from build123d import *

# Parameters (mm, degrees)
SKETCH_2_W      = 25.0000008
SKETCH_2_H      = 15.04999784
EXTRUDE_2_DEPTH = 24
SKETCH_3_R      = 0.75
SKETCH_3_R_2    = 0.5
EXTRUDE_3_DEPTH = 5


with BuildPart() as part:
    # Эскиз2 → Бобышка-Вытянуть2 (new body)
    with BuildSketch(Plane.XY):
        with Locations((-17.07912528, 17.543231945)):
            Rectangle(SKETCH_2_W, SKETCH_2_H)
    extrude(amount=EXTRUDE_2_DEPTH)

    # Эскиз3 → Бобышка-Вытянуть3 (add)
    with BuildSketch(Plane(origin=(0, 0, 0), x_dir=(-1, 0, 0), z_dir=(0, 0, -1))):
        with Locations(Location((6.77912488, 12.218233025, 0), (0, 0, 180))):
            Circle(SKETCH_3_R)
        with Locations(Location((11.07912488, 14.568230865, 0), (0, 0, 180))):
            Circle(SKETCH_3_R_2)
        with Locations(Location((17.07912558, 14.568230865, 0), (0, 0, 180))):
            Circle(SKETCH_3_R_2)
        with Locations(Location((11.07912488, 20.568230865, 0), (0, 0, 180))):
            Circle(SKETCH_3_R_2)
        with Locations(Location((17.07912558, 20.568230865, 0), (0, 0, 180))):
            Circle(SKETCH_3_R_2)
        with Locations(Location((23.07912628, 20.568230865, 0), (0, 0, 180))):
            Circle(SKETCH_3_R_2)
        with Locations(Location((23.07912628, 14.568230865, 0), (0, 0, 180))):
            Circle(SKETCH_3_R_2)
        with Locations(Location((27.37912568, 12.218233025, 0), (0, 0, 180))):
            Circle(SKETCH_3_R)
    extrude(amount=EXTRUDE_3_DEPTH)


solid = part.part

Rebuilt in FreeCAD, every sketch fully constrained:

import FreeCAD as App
import Part
import Sketcher

V = App.Vector


def add_polygon(sketch, points):
    """Adds a closed chain of lines whose ends are joined by coincident constraints."""
    first, n = sketch.GeometryCount, len(points)
    for a, b in zip(points, points[1:] + points[:1]):
        sketch.addGeometry(Part.LineSegment(App.Vector(*a, 0), App.Vector(*b, 0)), False)
    for i in range(n):
        sketch.addConstraint(Sketcher.Constraint("Coincident", first + i, 2, first + (i + 1) % n, 1))

doc = App.newDocument("Part")
params = doc.addObject("Spreadsheet::Sheet", "Params")
for row, (alias, value) in enumerate([
    ("sketch1_width", "25.000001 mm"),
    ("pad1_length", "24 mm"),
    ("sketch2_diameter", "1 mm"),
    ("sketch2_diameter2", "1.5 mm"),
    ("pad2_length", "5 mm"),
], start=1):
    params.set(f"A{row}", alias)
    params.set(f"B{row}", "=" + value)
    params.setAlias(f"B{row}", alias)

body = doc.addObject("PartDesign::Body", "Body")

# Sketch on XY plane
sketch1 = doc.addObject("Sketcher::SketchObject", "Sketch")
body.addObject(sketch1)
sketch1.AttachmentSupport = (doc.XY_Plane, [""])
sketch1.MapMode = "FlatFace"
add_polygon(sketch1, [(-30, 25), (-30, 10), (-5, 10), (-5, 25)])  # lines 0-3
sketch1.addConstraint([
    Sketcher.Constraint("Vertical", 0),
    Sketcher.Constraint("Horizontal", 1),
    Sketcher.Constraint("Vertical", 2),
    Sketcher.Constraint("Horizontal", 3),
    Sketcher.Constraint("DistanceX", 1, 1, 1, 2, 25.000001),
    Sketcher.Constraint("DistanceY", 0, 2, 0, 1, 15.049998),
    Sketcher.Constraint("DistanceY", -1, 1, 2, 2, 25.068231),
    Sketcher.Constraint("DistanceX", 0, 2, -1, 1, 29.579126),
])
sketch1.setExpression("Constraints[8]", "Params.sketch1_width")
pad1 = doc.addObject("PartDesign::Pad", "Pad")
body.addObject(pad1)
pad1.Profile = sketch1
pad1.setExpression("Length", "Params.pad1_length")

# Sketch on XY plane
sketch2 = doc.addObject("Sketcher::SketchObject", "Sketch001")
body.addObject(sketch2)
sketch2.AttachmentSupport = (doc.XY_Plane, [""])
sketch2.MapMode = "FlatFace"
sketch2.addGeometry([
    Part.Circle(V(-6.8, 12.2, 0), V(0, 0, 1), 0.8),  # 0
    Part.Circle(V(-11.1, 14.6, 0), V(0, 0, 1), 0.5),  # 1
    Part.Circle(V(-17.1, 14.6, 0), V(0, 0, 1), 0.5),  # 2
    Part.Circle(V(-11.1, 20.6, 0), V(0, 0, 1), 0.5),  # 3
    Part.Circle(V(-17.1, 20.6, 0), V(0, 0, 1), 0.5),  # 4
    Part.Circle(V(-23.1, 20.6, 0), V(0, 0, 1), 0.5),  # 5
    Part.Circle(V(-23.1, 14.6, 0), V(0, 0, 1), 0.5),  # 6
    Part.Circle(V(-27.4, 12.2, 0), V(0, 0, 1), 0.8),  # 7
], False)
sketch2.addConstraint([
    Sketcher.Constraint("Equal", 1, 2),
    Sketcher.Constraint("Equal", 2, 3),
    Sketcher.Constraint("Equal", 3, 4),
    Sketcher.Constraint("Equal", 4, 5),
    Sketcher.Constraint("Equal", 5, 6),
    Sketcher.Constraint("Equal", 0, 7),
    Sketcher.Constraint("Horizontal", 1, 3, 2, 3),
    Sketcher.Constraint("Horizontal", 3, 3, 4, 3),
    Sketcher.Constraint("Horizontal", 4, 3, 5, 3),
    Sketcher.Constraint("Horizontal", 2, 3, 6, 3),
    Sketcher.Constraint("Horizontal", 0, 3, 7, 3),
    Sketcher.Constraint("Vertical", 1, 3, 3, 3),
    Sketcher.Constraint("Vertical", 2, 3, 4, 3),
    Sketcher.Constraint("Vertical", 5, 3, 6, 3),
    Sketcher.Constraint("Diameter", 1, 1.0),
    Sketcher.Constraint("Diameter", 0, 1.5),
    Sketcher.Constraint("DistanceX", 2, 3, 1, 3, 6.000001),
    Sketcher.Constraint("DistanceY", 1, 3, 3, 3, 6.0),
    Sketcher.Constraint("DistanceX", 5, 3, 4, 3, 6.000001),
    Sketcher.Constraint("DistanceX", 1, 3, 0, 3, 4.3),
    Sketcher.Constraint("DistanceX", 7, 3, 6, 3, 4.299999),
    Sketcher.Constraint("DistanceY", -1, 1, 1, 3, 14.568231),
    Sketcher.Constraint("DistanceX", 0, 3, -1, 1, 6.779125),
    Sketcher.Constraint("DistanceY", -1, 1, 0, 3, 12.218233),
])
sketch2.setExpression("Constraints[14]", "Params.sketch2_diameter")
sketch2.setExpression("Constraints[15]", "Params.sketch2_diameter2")
pad2 = doc.addObject("PartDesign::Pad", "Pad001")
body.addObject(pad2)
pad2.Profile = sketch2
pad2.setExpression("Length", "Params.pad2_length")
pad2.Reversed = True

doc.recompute()
